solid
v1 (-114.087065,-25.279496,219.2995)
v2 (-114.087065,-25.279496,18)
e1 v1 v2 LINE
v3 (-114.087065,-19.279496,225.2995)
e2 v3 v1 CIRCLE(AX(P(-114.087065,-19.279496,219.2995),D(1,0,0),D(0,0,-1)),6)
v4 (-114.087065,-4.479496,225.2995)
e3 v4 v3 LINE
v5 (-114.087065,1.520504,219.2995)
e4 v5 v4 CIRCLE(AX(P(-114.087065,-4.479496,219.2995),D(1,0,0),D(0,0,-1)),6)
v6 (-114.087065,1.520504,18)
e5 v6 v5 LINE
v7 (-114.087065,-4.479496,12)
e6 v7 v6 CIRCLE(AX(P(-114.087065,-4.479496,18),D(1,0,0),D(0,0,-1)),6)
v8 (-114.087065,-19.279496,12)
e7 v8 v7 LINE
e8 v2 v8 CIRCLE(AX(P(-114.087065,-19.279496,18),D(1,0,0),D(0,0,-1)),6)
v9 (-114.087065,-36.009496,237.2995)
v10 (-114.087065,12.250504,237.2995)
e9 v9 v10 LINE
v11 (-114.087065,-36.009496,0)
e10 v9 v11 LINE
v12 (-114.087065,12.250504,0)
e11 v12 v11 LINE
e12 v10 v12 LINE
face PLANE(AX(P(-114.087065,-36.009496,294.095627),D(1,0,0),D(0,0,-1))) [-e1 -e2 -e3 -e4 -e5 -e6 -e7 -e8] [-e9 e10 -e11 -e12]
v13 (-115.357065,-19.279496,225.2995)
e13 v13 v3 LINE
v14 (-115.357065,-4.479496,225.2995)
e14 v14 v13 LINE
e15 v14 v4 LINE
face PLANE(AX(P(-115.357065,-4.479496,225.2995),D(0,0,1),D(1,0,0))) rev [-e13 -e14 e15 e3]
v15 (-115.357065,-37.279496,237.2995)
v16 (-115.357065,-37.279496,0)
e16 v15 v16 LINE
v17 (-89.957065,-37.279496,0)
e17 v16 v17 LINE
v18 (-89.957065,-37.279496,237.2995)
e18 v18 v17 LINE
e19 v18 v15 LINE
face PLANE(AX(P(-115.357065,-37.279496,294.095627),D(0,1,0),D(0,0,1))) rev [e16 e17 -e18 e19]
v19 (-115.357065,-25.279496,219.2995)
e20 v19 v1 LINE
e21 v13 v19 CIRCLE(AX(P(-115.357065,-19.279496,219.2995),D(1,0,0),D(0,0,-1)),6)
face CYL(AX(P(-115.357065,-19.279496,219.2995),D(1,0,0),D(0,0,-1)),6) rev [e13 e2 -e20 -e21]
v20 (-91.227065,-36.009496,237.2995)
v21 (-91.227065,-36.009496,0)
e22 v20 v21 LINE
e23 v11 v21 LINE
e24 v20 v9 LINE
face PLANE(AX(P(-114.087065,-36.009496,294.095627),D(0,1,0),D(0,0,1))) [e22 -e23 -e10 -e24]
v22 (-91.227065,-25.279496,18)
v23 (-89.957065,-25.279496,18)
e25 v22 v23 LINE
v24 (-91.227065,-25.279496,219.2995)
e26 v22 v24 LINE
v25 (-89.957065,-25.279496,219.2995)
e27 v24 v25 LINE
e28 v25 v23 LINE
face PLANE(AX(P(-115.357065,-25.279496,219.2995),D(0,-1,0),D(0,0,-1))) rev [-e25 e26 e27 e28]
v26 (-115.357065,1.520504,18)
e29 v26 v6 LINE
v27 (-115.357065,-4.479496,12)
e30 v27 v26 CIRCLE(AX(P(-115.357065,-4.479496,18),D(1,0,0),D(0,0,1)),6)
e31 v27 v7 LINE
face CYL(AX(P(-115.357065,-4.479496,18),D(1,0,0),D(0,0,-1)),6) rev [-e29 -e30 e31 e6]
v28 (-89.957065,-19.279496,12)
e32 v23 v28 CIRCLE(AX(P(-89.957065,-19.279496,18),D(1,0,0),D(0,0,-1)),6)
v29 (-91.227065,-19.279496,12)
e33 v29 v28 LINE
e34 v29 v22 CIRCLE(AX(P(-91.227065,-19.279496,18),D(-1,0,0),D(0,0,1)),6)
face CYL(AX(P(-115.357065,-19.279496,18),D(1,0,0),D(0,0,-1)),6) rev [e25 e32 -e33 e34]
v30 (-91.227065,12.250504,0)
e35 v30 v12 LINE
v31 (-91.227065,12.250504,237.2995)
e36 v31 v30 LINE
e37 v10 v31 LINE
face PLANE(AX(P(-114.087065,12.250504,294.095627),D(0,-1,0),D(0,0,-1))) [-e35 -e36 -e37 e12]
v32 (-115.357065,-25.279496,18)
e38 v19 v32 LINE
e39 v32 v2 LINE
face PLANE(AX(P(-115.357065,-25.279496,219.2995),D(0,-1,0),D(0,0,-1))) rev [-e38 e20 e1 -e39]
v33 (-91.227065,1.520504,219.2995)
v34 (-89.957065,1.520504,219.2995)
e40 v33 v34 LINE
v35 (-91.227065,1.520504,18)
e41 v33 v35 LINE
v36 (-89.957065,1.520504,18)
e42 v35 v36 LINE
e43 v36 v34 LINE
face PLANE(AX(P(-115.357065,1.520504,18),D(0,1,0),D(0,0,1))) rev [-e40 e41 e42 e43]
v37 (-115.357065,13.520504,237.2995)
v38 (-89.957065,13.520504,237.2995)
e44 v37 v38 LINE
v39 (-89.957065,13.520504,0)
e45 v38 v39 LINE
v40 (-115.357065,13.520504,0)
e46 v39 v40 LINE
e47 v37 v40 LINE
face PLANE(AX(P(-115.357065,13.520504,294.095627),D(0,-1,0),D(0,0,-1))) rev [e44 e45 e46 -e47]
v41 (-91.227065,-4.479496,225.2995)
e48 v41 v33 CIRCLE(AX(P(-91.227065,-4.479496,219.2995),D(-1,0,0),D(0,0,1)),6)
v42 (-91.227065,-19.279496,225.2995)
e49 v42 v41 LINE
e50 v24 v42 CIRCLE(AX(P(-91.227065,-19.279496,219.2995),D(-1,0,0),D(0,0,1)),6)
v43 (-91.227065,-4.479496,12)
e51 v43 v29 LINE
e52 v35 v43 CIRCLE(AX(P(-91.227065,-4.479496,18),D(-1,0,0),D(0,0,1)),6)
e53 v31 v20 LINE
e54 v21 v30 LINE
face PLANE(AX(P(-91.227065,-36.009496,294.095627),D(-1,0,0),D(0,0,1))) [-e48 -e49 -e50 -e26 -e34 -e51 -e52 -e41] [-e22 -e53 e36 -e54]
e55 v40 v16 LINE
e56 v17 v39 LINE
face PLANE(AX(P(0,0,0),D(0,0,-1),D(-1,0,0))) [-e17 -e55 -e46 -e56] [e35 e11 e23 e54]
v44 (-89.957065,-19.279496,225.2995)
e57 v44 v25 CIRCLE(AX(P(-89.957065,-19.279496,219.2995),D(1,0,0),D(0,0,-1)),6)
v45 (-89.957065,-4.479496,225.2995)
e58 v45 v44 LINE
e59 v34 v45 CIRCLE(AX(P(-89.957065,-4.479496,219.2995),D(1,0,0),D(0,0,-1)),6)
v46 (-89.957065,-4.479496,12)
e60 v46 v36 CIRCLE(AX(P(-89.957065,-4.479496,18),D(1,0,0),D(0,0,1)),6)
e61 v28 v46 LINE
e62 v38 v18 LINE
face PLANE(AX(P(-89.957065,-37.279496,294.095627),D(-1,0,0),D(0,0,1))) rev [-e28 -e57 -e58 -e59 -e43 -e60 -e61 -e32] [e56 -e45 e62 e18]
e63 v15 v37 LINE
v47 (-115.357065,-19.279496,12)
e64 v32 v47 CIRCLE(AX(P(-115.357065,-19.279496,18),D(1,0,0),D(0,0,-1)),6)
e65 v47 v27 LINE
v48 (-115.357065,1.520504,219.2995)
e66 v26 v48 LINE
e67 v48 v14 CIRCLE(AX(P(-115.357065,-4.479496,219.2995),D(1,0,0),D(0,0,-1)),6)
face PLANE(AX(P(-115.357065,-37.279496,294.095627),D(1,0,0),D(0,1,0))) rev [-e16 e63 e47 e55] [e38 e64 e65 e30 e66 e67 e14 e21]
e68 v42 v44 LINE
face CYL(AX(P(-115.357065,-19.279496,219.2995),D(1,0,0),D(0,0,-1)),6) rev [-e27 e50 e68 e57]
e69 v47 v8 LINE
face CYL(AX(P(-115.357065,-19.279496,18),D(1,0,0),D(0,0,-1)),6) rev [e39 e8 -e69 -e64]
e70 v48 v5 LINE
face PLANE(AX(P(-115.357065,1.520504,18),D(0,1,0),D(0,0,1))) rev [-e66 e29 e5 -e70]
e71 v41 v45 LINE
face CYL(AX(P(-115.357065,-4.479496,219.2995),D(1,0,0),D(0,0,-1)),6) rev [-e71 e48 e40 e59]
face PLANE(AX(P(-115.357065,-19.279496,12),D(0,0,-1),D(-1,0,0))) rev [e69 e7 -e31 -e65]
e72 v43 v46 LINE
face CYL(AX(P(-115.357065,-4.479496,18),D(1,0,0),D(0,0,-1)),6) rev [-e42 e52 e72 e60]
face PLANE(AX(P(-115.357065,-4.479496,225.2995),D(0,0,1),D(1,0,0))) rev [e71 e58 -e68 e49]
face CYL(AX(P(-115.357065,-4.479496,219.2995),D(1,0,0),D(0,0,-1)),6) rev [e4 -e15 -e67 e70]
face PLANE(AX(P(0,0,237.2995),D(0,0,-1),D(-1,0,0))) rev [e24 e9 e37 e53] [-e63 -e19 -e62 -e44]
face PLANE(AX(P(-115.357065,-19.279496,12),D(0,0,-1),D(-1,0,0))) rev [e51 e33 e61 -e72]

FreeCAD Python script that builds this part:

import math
import FreeCAD as App
import Part
import Sketcher
from FreeCAD import Vector
Q = App.Units.Quantity

doc = App.newDocument("Part")
params = doc.addObject("Spreadsheet::Sheet", "Params")
for row, (alias, value) in enumerate([
    ("sketch1_width", "1 in"),
    ("sketch1_height", "2 in"),
    ("sketch1_width2", "0.9 in"),
    ("sketch1_height2", "1.9 in"),
    ("pad1_length", "9.3425 in"),
], start=1):
    params.set(f"A{row}", alias)
    params.set(f"B{row}", "=" + value)
    params.setAlias(f"B{row}", alias)

body = doc.addObject("PartDesign::Body", "Body")

# Sketch on XY plane
sketch1 = body.newObject("Sketcher::SketchObject", "Sketch")
sketch1.AttachmentSupport = (doc.getObject("XY_Plane"), [""])
sketch1.MapMode = "FlatFace"
sketch1.addGeometry([
    Part.LineSegment(Vector(-115, 14, 0), Vector(-115, -37, 0)),  # 0
    Part.LineSegment(Vector(-115, -37, 0), Vector(-90, -37, 0)),  # 1
    Part.LineSegment(Vector(-90, -37, 0), Vector(-90, 14, 0)),  # 2
    Part.LineSegment(Vector(-90, 14, 0), Vector(-115, 14, 0)),  # 3
    Part.LineSegment(Vector(-91, -36, 0), Vector(-114, -36, 0)),  # 4
    Part.LineSegment(Vector(-114, -36, 0), Vector(-114, 12, 0)),  # 5
    Part.LineSegment(Vector(-114, 12, 0), Vector(-91, 12, 0)),  # 6
    Part.LineSegment(Vector(-91, 12, 0), Vector(-91, -36, 0)),  # 7
], False)
sketch1.addConstraint([
    Sketcher.Constraint("Coincident", 0, 2, 1, 1),
    Sketcher.Constraint("Coincident", 1, 2, 2, 1),
    Sketcher.Constraint("Coincident", 2, 2, 3, 1),
    Sketcher.Constraint("Coincident", 3, 2, 0, 1),
    Sketcher.Constraint("Coincident", 4, 2, 5, 1),
    Sketcher.Constraint("Coincident", 5, 2, 6, 1),
    Sketcher.Constraint("Coincident", 6, 2, 7, 1),
    Sketcher.Constraint("Coincident", 7, 2, 4, 1),
    Sketcher.Constraint("Vertical", 0),
    Sketcher.Constraint("Horizontal", 1),
    Sketcher.Constraint("Vertical", 2),
    Sketcher.Constraint("Horizontal", 3),
    Sketcher.Constraint("Horizontal", 4),
    Sketcher.Constraint("Vertical", 5),
    Sketcher.Constraint("Horizontal", 6),
    Sketcher.Constraint("Vertical", 7),
    Sketcher.Constraint("DistanceX", 1, 1, 1, 2, Q("1 in")),
    Sketcher.Constraint("DistanceY", 0, 2, 0, 1, Q("2 in")),
    Sketcher.Constraint("DistanceX", 4, 2, 4, 1, Q("0.9 in")),
    Sketcher.Constraint("DistanceY", 5, 1, 5, 2, Q("1.9 in")),
    Sketcher.Constraint("DistanceX", 0, 2, 4, 2, Q("0.05 in")),
    Sketcher.Constraint("DistanceY", 0, 2, 4, 2, Q("0.05 in")),
    Sketcher.Constraint("DistanceX", 0, 2, -1, 1, 115.357065),
    Sketcher.Constraint("DistanceY", 0, 2, -1, 1, 37.279496),
])
sketch1.setExpression("Constraints[16]", "Params.sketch1_width")
sketch1.setExpression("Constraints[17]", "Params.sketch1_height")
sketch1.setExpression("Constraints[18]", "Params.sketch1_width2")
sketch1.setExpression("Constraints[19]", "Params.sketch1_height2")
pad1 = body.newObject("PartDesign::Pad", "Pad")
pad1.Profile = sketch1
pad1.setExpression("Length", "Params.pad1_length")

# Sketch on YZ plane
sketch2 = body.newObject("Sketcher::SketchObject", "Sketch001")
sketch2.AttachmentSupport = (doc.getObject("YZ_Plane"), [""])
sketch2.MapMode = "FlatFace"
sketch2.AttachmentOffset = App.Placement(Vector(0, 0, -89.957065), App.Rotation())
sketch2.addGeometry([
    Part.LineSegment(Vector(2, 18, 0), Vector(2, 219, 0)),  # 0
    Part.ArcOfCircle(Part.Circle(Vector(-4, 219, 0), Vector(0, 0, 1), 6), math.radians(0), math.radians(90)),  # 1
    Part.LineSegment(Vector(-4, 225, 0), Vector(-19, 225, 0)),  # 2
    Part.ArcOfCircle(Part.Circle(Vector(-19, 219, 0), Vector(0, 0, 1), 6), math.radians(90), math.radians(180)),  # 3
    Part.LineSegment(Vector(-25, 219, 0), Vector(-25, 18, 0)),  # 4
    Part.ArcOfCircle(Part.Circle(Vector(-19, 18, 0), Vector(0, 0, 1), 6), math.radians(180), math.radians(270)),  # 5
    Part.LineSegment(Vector(-19, 12, 0), Vector(-4, 12, 0)),  # 6
    Part.ArcOfCircle(Part.Circle(Vector(-4, 18, 0), Vector(0, 0, 1), 6), math.radians(-90), math.radians(0)),  # 7
], False)
sketch2.addConstraint([
    Sketcher.Constraint("Tangent", 0, 2, 1, 1),
    Sketcher.Constraint("Tangent", 1, 2, 2, 1),
    Sketcher.Constraint("Tangent", 2, 2, 3, 1),
    Sketcher.Constraint("Tangent", 3, 2, 4, 1),
    Sketcher.Constraint("Tangent", 4, 2, 5, 1),
    Sketcher.Constraint("Tangent", 5, 2, 6, 1),
    Sketcher.Constraint("Tangent", 6, 2, 7, 1),
    Sketcher.Constraint("Tangent", 7, 2, 0, 1),
    Sketcher.Constraint("Vertical", 0),
    Sketcher.Constraint("Horizontal", 2),
    Sketcher.Constraint("Vertical", 4),
    Sketcher.Constraint("Horizontal", 6),
    Sketcher.Constraint("Equal", 1, 3),
    Sketcher.Constraint("Equal", 3, 5),
    Sketcher.Constraint("Equal", 5, 7),
    Sketcher.Constraint("Radius", 1, 6.0),
    Sketcher.Constraint("DistanceX", 2, 2, 2, 1, 14.8),
    Sketcher.Constraint("DistanceY", 0, 1, 0, 2, 201.2995),
    Sketcher.Constraint("DistanceY", -1, 1, 1, 3, 219.2995),
    Sketcher.Constraint("DistanceX", 1, 3, -1, 1, 4.479496),
])
pocket1 = body.newObject("PartDesign::Pocket", "Pocket")
pocket1.Profile = sketch2
pocket1.Type = "ThroughAll"

doc.recompute()
